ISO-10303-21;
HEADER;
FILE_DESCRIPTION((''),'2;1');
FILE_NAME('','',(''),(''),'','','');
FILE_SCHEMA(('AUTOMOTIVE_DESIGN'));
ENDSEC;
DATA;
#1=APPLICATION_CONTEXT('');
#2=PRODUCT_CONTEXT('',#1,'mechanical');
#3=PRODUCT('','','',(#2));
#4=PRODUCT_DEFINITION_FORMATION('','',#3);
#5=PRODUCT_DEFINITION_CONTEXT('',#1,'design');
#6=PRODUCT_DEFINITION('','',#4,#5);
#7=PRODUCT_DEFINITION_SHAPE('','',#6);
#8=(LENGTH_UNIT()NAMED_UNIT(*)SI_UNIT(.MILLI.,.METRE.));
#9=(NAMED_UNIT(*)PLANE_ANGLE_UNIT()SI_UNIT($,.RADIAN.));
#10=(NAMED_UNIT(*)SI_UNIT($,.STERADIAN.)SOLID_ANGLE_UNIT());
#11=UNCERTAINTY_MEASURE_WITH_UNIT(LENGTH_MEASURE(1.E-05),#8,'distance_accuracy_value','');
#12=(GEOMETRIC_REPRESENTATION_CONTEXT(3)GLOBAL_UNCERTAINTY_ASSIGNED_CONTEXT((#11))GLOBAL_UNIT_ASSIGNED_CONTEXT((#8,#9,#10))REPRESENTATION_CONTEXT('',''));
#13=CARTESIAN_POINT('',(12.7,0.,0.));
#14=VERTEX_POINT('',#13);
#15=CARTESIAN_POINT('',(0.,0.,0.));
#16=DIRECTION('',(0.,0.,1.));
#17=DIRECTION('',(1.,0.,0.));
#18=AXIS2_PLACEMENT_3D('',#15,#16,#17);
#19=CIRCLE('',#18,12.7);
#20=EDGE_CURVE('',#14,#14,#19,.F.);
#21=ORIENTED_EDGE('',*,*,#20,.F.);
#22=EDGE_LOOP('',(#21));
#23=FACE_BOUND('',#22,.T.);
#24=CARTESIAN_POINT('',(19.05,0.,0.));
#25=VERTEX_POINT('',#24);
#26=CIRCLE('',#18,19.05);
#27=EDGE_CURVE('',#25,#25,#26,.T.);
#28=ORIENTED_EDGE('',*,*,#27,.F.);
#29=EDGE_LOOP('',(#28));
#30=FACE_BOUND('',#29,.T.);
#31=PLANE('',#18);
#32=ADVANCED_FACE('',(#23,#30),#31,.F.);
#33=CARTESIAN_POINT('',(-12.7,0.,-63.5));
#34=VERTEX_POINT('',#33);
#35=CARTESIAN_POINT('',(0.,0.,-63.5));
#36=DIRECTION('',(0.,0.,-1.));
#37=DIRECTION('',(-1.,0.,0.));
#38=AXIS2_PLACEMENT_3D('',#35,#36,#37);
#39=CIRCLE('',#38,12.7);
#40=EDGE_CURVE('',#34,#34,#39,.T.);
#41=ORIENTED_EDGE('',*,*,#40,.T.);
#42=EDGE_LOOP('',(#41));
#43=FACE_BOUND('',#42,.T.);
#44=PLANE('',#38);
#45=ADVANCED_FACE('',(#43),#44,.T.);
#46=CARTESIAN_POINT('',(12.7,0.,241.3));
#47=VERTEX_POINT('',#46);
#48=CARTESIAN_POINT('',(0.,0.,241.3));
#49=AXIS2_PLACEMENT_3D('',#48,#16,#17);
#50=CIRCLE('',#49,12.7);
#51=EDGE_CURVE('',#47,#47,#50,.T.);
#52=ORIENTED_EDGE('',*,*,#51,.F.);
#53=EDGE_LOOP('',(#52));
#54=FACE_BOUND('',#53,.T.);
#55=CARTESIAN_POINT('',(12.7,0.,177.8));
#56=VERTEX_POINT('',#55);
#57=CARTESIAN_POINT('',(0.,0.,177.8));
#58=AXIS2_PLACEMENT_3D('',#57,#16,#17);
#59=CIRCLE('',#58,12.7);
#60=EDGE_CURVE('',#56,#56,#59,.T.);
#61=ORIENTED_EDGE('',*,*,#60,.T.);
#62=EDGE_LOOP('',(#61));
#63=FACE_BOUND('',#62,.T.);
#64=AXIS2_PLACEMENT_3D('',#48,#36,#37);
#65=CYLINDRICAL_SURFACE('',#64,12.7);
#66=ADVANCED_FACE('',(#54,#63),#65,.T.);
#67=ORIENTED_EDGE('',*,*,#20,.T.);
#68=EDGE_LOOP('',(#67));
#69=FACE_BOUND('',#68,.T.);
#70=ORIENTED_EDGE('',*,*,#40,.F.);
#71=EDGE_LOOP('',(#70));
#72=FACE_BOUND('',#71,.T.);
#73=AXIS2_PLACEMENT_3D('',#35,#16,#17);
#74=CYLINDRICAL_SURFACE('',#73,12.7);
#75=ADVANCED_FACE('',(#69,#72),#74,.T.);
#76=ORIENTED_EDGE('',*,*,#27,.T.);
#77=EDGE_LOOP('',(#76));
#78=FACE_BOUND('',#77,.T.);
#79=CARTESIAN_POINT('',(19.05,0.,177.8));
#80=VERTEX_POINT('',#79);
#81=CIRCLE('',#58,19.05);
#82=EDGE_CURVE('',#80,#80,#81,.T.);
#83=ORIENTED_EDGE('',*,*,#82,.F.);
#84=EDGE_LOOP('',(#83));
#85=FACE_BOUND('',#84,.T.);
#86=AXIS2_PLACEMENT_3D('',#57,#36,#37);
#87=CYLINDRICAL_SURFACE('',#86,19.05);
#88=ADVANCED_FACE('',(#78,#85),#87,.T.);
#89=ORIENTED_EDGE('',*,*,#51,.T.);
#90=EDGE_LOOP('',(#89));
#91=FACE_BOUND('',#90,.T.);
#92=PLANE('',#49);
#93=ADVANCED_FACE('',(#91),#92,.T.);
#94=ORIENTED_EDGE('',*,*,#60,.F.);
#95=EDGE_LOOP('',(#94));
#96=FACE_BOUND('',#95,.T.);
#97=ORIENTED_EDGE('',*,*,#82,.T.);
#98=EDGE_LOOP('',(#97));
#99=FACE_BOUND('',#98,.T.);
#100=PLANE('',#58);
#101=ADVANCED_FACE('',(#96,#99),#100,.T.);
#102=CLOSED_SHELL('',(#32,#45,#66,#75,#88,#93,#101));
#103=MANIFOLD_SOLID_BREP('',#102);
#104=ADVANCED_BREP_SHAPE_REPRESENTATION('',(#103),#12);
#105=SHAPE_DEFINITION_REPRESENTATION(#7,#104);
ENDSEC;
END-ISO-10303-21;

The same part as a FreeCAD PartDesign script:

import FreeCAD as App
import Part
import Sketcher
from FreeCAD import Vector
Q = App.Units.Quantity

doc = App.newDocument("Part")
body = doc.addObject("PartDesign::Body", "Body")

# Sketch on XY plane
sketch1 = doc.addObject("Sketcher::SketchObject", "Sketch")
body.addObject(sketch1)
sketch1.AttachmentSupport = (doc.XY_Plane, [""])
sketch1.MapMode = "FlatFace"
sketch1.addGeometry(Part.Circle(Vector(0, 0, 0), Vector(0, 0, 1), 19), False)
sketch1.addConstraint([
    Sketcher.Constraint("Coincident", 0, 3, -1, 1),
    Sketcher.Constraint("Diameter", 0, Q("1.5 in")),
])
pad1 = doc.addObject("PartDesign::Pad", "Pad")
body.addObject(pad1)
pad1.Profile = sketch1
pad1.Length = Q("7 in")

# Sketch on XY plane
sketch2 = doc.addObject("Sketcher::SketchObject", "Sketch001")
body.addObject(sketch2)
sketch2.AttachmentSupport = (doc.XY_Plane, [""])
sketch2.MapMode = "FlatFace"
sketch2.AttachmentOffset = App.Placement(Vector(0, 0, 7 * 25.4), App.Rotation())
sketch2.addGeometry(Part.Circle(Vector(0, 0, 0), Vector(0, 0, 1), 13), False)
sketch2.addConstraint([
    Sketcher.Constraint("Coincident", 0, 3, -1, 1),
    Sketcher.Constraint("Diameter", 0, Q("1 in")),
])
pad2 = doc.addObject("PartDesign::Pad", "Pad001")
body.addObject(pad2)
pad2.Profile = sketch2
pad2.Length = Q("2.5 in")

# Sketch on XY plane
sketch3 = doc.addObject("Sketcher::SketchObject", "Sketch002")
body.addObject(sketch3)
sketch3.AttachmentSupport = (doc.XY_Plane, [""])
sketch3.MapMode = "FlatFace"
sketch3.addGeometry(Part.Circle(Vector(0, 0, 0), Vector(0, 0, 1), 13), False)
sketch3.addConstraint([
    Sketcher.Constraint("Coincident", 0, 3, -1, 1),
    Sketcher.Constraint("Diameter", 0, Q("1 in")),
])
pad3 = doc.addObject("PartDesign::Pad", "Pad002")
body.addObject(pad3)
pad3.Profile = sketch3
pad3.Length = Q("2.5 in")
pad3.Reversed = True

doc.recompute()
